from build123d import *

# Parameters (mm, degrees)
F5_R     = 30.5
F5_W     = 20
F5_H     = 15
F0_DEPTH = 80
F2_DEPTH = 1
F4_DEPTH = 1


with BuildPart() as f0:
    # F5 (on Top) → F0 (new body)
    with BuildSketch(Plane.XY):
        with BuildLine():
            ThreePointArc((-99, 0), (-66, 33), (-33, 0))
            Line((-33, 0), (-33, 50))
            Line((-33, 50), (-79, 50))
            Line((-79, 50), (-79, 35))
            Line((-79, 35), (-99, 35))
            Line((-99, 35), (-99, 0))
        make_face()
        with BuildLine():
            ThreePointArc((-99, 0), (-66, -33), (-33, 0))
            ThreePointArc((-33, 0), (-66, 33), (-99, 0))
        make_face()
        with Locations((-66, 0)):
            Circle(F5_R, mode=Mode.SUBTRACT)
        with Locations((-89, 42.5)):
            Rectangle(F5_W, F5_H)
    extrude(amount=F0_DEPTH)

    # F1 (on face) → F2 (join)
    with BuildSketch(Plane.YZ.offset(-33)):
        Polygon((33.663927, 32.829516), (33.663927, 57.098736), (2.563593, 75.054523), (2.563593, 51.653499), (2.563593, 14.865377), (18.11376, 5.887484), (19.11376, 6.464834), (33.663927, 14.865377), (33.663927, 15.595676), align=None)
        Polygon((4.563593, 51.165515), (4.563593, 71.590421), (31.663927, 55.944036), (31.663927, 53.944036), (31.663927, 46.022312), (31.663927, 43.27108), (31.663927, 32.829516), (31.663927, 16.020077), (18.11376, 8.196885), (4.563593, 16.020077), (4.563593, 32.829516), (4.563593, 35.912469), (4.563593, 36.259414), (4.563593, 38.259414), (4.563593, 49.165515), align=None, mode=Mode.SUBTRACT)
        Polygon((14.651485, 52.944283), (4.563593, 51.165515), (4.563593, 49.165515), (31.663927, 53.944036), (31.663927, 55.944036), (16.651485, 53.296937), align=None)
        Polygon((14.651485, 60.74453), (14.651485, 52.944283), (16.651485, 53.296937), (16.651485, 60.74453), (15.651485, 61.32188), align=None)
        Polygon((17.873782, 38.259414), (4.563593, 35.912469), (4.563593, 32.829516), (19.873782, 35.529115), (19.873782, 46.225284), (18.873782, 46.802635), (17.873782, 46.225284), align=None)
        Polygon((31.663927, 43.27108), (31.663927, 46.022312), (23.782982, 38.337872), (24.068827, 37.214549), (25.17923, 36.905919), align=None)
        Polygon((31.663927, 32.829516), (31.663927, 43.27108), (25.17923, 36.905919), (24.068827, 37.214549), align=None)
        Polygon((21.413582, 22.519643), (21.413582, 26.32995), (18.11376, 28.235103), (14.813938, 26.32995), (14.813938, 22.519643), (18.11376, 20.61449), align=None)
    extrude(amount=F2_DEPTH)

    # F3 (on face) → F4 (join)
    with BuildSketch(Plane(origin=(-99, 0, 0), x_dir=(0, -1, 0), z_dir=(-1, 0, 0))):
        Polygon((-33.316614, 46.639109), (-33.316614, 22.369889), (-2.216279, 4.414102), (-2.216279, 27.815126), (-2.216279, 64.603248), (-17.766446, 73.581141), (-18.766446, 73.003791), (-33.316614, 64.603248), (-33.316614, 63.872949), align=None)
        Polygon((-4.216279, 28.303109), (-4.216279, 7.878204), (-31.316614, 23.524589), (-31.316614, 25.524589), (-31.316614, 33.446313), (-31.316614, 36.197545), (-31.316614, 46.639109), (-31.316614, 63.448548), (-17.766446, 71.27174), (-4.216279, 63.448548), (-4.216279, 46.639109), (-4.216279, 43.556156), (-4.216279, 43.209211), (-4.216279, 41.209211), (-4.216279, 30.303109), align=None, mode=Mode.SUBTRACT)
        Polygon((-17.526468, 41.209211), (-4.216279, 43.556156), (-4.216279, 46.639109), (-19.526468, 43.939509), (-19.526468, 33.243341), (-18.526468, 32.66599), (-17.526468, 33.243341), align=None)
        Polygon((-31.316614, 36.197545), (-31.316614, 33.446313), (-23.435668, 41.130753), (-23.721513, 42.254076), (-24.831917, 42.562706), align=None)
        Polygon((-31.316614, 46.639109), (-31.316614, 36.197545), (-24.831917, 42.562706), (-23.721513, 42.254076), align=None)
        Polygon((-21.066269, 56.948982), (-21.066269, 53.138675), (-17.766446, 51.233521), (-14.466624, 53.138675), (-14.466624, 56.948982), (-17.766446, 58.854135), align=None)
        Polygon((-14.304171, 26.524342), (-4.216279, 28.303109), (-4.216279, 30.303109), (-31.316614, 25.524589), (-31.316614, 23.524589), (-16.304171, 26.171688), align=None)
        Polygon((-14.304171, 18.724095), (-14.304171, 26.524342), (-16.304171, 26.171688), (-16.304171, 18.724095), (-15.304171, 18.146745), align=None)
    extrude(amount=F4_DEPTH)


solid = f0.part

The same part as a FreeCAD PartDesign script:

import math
import FreeCAD as App
import Part
import Sketcher
from FreeCAD import Vector
Q = App.Units.Quantity

doc = App.newDocument("Part")
body = doc.addObject("PartDesign::Body", "Body")

sketch1 = body.newObject("Sketcher::SketchObject", "Sketch")
sketch1.AttachmentSupport = (doc.getObject("XY_Plane"), [""])
sketch1.MapMode = "FlatFace"
sketch1.addGeometry([
    Part.LineSegment(Vector(-33, 0, 0), Vector(-33, 50, 0)),
    Part.LineSegment(Vector(-33, 50, 0), Vector(-99, 50, 0)),
    Part.LineSegment(Vector(-99, 50, 0), Vector(-99, 0, 0)),
    Part.ArcOfCircle(Part.Circle(Vector(-66, 0, 0), Vector(0, 0, 1), 33), math.radians(180), math.radians(360)),
    Part.Circle(Vector(-66, 0, 0), Vector(0, 0, 1), 30),
], False)
sketch1.addConstraint([
    Sketcher.Constraint("Coincident", 0, 2, 1, 1),
    Sketcher.Constraint("Coincident", 1, 2, 2, 1),
    Sketcher.Constraint("Tangent", 2, 2, 3, 1),
    Sketcher.Constraint("Tangent", 3, 2, 0, 1),
    Sketcher.Constraint("Vertical", 0),
    Sketcher.Constraint("Horizontal", 1),
    Sketcher.Constraint("Vertical", 2),
    Sketcher.Constraint("Coincident", 4, 3, 3, 3),
    Sketcher.Constraint("PointOnObject", 3, 3, -1),
    Sketcher.Constraint("Diameter", 4, 61.0),
    Sketcher.Constraint("Radius", 3, 33.0),
    Sketcher.Constraint("DistanceY", 0, 1, 0, 2, 50.0),
    Sketcher.Constraint("DistanceX", 3, 3, -1, 1, 66.0),
])
pad1 = body.newObject("PartDesign::Pad", "Pad")
pad1.Profile = sketch1
pad1.Length = 80

sketch2 = body.newObject("Sketcher::SketchObject", "Sketch001")
sketch2.AttachmentSupport = (doc.getObject("YZ_Plane"), [""])
sketch2.MapMode = "FlatFace"
sketch2.AttachmentOffset = App.Placement(Vector(0, 0, -33), App.Rotation())
sketch2.addGeometry([
    Part.LineSegment(Vector(33.7, 57.1, 0), Vector(2.6, 75.1, 0)),
    Part.LineSegment(Vector(2.6, 75.1, 0), Vector(2.6, 14.9, 0)),
    Part.LineSegment(Vector(2.6, 14.9, 0), Vector(18.1, 5.9, 0)),
    Part.LineSegment(Vector(18.1, 5.9, 0), Vector(19.1, 6.5, 0)),
    Part.LineSegment(Vector(19.1, 6.5, 0), Vector(33.7, 14.9, 0)),
    Part.LineSegment(Vector(33.7, 14.9, 0), Vector(33.7, 57.1, 0)),
    Part.LineSegment(Vector(4.6, 16, 0), Vector(4.6, 32.8, 0)),
    Part.LineSegment(Vector(4.6, 32.8, 0), Vector(19.9, 35.5, 0)),
    Part.LineSegment(Vector(19.9, 35.5, 0), Vector(19.9, 46.2, 0)),
    Part.LineSegment(Vector(19.9, 46.2, 0), Vector(18.9, 46.8, 0)),
    Part.LineSegment(Vector(18.9, 46.8, 0), Vector(17.9, 46.2, 0)),
    Part.LineSegment(Vector(17.9, 46.2, 0), Vector(17.9, 38.3, 0)),
    Part.LineSegment(Vector(17.9, 38.3, 0), Vector(4.6, 35.9, 0)),
    Part.LineSegment(Vector(4.6, 35.9, 0), Vector(4.6, 49.2, 0)),
    Part.LineSegment(Vector(4.6, 49.2, 0), Vector(31.7, 53.9, 0)),
    Part.LineSegment(Vector(31.7, 53.9, 0), Vector(31.7, 46, 0)),
    Part.LineSegment(Vector(31.7, 46, 0), Vector(23.8, 38.3, 0)),
    Part.LineSegment(Vector(23.8, 38.3, 0), Vector(24.1, 37.2, 0)),
    Part.LineSegment(Vector(24.1, 37.2, 0), Vector(31.7, 32.8, 0)),
    Part.LineSegment(Vector(31.7, 32.8, 0), Vector(31.7, 16, 0)),
    Part.LineSegment(Vector(31.7, 16, 0), Vector(18.1, 8.2, 0)),
    Part.LineSegment(Vector(18.1, 8.2, 0), Vector(4.6, 16, 0)),
    Part.LineSegment(Vector(4.6, 51.2, 0), Vector(4.6, 71.6, 0)),
    Part.LineSegment(Vector(4.6, 71.6, 0), Vector(31.7, 55.9, 0)),
    Part.LineSegment(Vector(31.7, 55.9, 0), Vector(16.7, 53.3, 0)),
    Part.LineSegment(Vector(16.7, 53.3, 0), Vector(16.7, 60.7, 0)),
    Part.LineSegment(Vector(16.7, 60.7, 0), Vector(15.7, 61.3, 0)),
    Part.LineSegment(Vector(15.7, 61.3, 0), Vector(14.7, 60.7, 0)),
    Part.LineSegment(Vector(14.7, 60.7, 0), Vector(14.7, 52.9, 0)),
    Part.LineSegment(Vector(14.7, 52.9, 0), Vector(4.6, 51.2, 0)),
    Part.LineSegment(Vector(21.4, 22.5, 0), Vector(21.4, 26.3, 0)),
    Part.LineSegment(Vector(21.4, 26.3, 0), Vector(18.1, 28.2, 0)),
    Part.LineSegment(Vector(18.1, 28.2, 0), Vector(14.8, 26.3, 0)),
    Part.LineSegment(Vector(14.8, 26.3, 0), Vector(14.8, 22.5, 0)),
    Part.LineSegment(Vector(14.8, 22.5, 0), Vector(18.1, 20.6, 0)),
    Part.LineSegment(Vector(18.1, 20.6, 0), Vector(21.4, 22.5, 0)),
], False)
sketch2.addConstraint([
    Sketcher.Constraint("Coincident", 0, 2, 1, 1),
    Sketcher.Constraint("Coincident", 1, 2, 2, 1),
    Sketcher.Constraint("Coincident", 2, 2, 3, 1),
    Sketcher.Constraint("Coincident", 3, 2, 4, 1),
    Sketcher.Constraint("Coincident", 4, 2, 5, 1),
    Sketcher.Constraint("Coincident", 5, 2, 0, 1),
    Sketcher.Constraint("Coincident", 6, 2, 7, 1),
    Sketcher.Constraint("Coincident", 7, 2, 8, 1),
    Sketcher.Constraint("Coincident", 8, 2, 9, 1),
    Sketcher.Constraint("Coincident", 9, 2, 10, 1),
    Sketcher.Constraint("Coincident", 10, 2, 11, 1),
    Sketcher.Constraint("Coincident", 11, 2, 12, 1),
    Sketcher.Constraint("Coincident", 12, 2, 13, 1),
    Sketcher.Constraint("Coincident", 13, 2, 14, 1),
    Sketcher.Constraint("Coincident", 14, 2, 15, 1),
    Sketcher.Constraint("Coincident", 15, 2, 16, 1),
    Sketcher.Constraint("Coincident", 16, 2, 17, 1),
    Sketcher.Constraint("Coincident", 17, 2, 18, 1),
    Sketcher.Constraint("Coincident", 18, 2, 19, 1),
    Sketcher.Constraint("Coincident", 19, 2, 20, 1),
    Sketcher.Constraint("Coincident", 20, 2, 21, 1),
    Sketcher.Constraint("Coincident", 21, 2, 6, 1),
    Sketcher.Constraint("Coincident", 22, 2, 23, 1),
    Sketcher.Constraint("Coincident", 23, 2, 24, 1),
    Sketcher.Constraint("Coincident", 24, 2, 25, 1),
    Sketcher.Constraint("Coincident", 25, 2, 26, 1),
    Sketcher.Constraint("Coincident", 26, 2, 27, 1),
    Sketcher.Constraint("Coincident", 27, 2, 28, 1),
    Sketcher.Constraint("Coincident", 28, 2, 29, 1),
    Sketcher.Constraint("Coincident", 29, 2, 22, 1),
    Sketcher.Constraint("Coincident", 30, 2, 31, 1),
    Sketcher.Constraint("Coincident", 31, 2, 32, 1),
    Sketcher.Constraint("Coincident", 32, 2, 33, 1),
    Sketcher.Constraint("Coincident", 33, 2, 34, 1),
    Sketcher.Constraint("Coincident", 34, 2, 35, 1),
    Sketcher.Constraint("Coincident", 35, 2, 30, 1),
    Sketcher.Constraint("Vertical", 1),
    Sketcher.Constraint("Vertical", 5),
    Sketcher.Constraint("Vertical", 6),
    Sketcher.Constraint("Vertical", 8),
    Sketcher.Constraint("Vertical", 11),
    Sketcher.Constraint("Vertical", 13),
    Sketcher.Constraint("Vertical", 15),
    Sketcher.Constraint("Vertical", 19),
    Sketcher.Constraint("Vertical", 22),
    Sketcher.Constraint("Vertical", 25),
    Sketcher.Constraint("Vertical", 28),
    Sketcher.Constraint("Vertical", 30),
    Sketcher.Constraint("Vertical", 33),
    Sketcher.Constraint("Parallel", 0, 2),
    Sketcher.Constraint("Parallel", 3, 4),
    Sketcher.Constraint("Parallel", 2, 9),
    Sketcher.Constraint("Parallel", 4, 10),
    Sketcher.Constraint("Parallel", 7, 12),
    Sketcher.Constraint("Parallel", 12, 14),
    Sketcher.Constraint("Parallel", 9, 18),
    Sketcher.Constraint("Parallel", 10, 20),
    Sketcher.Constraint("Parallel", 18, 21),
    Sketcher.Constraint("Parallel", 21, 23),
    Sketcher.Constraint("Parallel", 14, 24),
    Sketcher.Constraint("Parallel", 23, 26),
    Sketcher.Constraint("Parallel", 20, 27),
    Sketcher.Constraint("Parallel", 24, 29),
    Sketcher.Constraint("Parallel", 26, 31),
    Sketcher.Constraint("Parallel", 27, 32),
    Sketcher.Constraint("Parallel", 31, 34),
    Sketcher.Constraint("Parallel", 32, 35),
    Sketcher.Constraint("Horizontal", 1, 2, 4, 2),
    Sketcher.Constraint("Horizontal", 8, 2, 10, 2),
    Sketcher.Constraint("Horizontal", 6, 2, 18, 2),
    Sketcher.Constraint("Horizontal", 19, 2, 21, 2),
    Sketcher.Constraint("Horizontal", 25, 2, 27, 2),
    Sketcher.Constraint("Horizontal", 30, 2, 32, 2),
    Sketcher.Constraint("Horizontal", 33, 2, 35, 2),
    Sketcher.Constraint("Vertical", 6, 2, 12, 2),
    Sketcher.Constraint("Vertical", 15, 2, 18, 2),
    Sketcher.Constraint("Vertical", 2, 2, 20, 2),
    Sketcher.Constraint("Vertical", 21, 2, 22, 2),
    Sketcher.Constraint("Vertical", 19, 2, 23, 2),
    Sketcher.Constraint("Vertical", 20, 2, 31, 2),
    Sketcher.Constraint("Vertical", 31, 2, 34, 2),
    Sketcher.Constraint("Equal", 3, 9),
    Sketcher.Constraint("Equal", 10, 26),
    Sketcher.Constraint("Angle", 0, Q("149.999999 deg")),
    Sketcher.Constraint("Angle", 7, Q("9.999999 deg")),
    Sketcher.Constraint("DistanceX", 2, 2, 3, 2, 1.0),
    Sketcher.Constraint("DistanceX", 1, 2, 6, 2, 2.0),
    Sketcher.Constraint("DistanceY", 14, 2, 23, 2, 2.0),
    Sketcher.Constraint("DistanceY", 13, 2, 29, 2, 2.0),
    Sketcher.Constraint("DistanceY", 6, 2, 13, 2, 16.335999),
    Sketcher.Constraint("DistanceY", 10, 2, 28, 2, 6.718999),
    Sketcher.Constraint("Distance", 14, 27.5184),
    Sketcher.Constraint("DistanceY", 5, 1, 5, 2, 42.233359),
    Sketcher.Constraint("DistanceY", 6, 1, 6, 2, 16.809439),
    Sketcher.Constraint("DistanceY", 8, 1, 8, 2, 10.696169),
    Sketcher.Constraint("DistanceY", 11, 2, 11, 1, 7.96587),
    Sketcher.Constraint("DistanceY", 6, 2, 7, 2, 2.699599),
    Sketcher.Constraint("DistanceY", 9, 2, 5, 2, 10.296101),
    Sketcher.Constraint("DistanceX", 7, 2, 16, 2, 3.9092),
    Sketcher.Constraint("DistanceX", 17, 2, 18, 2, 7.5951),
    Sketcher.Constraint("DistanceX", 7, 2, 30, 2, 1.5398),
    Sketcher.Constraint("DistanceY", 30, 2, 17, 2, 10.884599),
    Sketcher.Constraint("Distance", 17, 1.159121),
    Sketcher.Constraint("DistanceY", 15, 2, 15, 1, 7.921724),
    Sketcher.Constraint("DistanceY", 25, 1, 25, 2, 7.447593),
    Sketcher.Constraint("DistanceY", 30, 1, 30, 2, 3.810307),
    Sketcher.Constraint("DistanceX", -1, 1, 2, 2, 18.11376),
    Sketcher.Constraint("DistanceY", -1, 1, 12, 2, 35.912469),
])
pad2 = body.newObject("PartDesign::Pad", "Pad001")
pad2.Profile = sketch2
pad2.Length = 1

sketch3 = body.newObject("Sketcher::SketchObject", "Sketch002")
sketch3.AttachmentSupport = (doc.getObject("YZ_Plane"), [""])
sketch3.MapMode = "FlatFace"
sketch3.AttachmentOffset = App.Placement(Vector(0, 0, -99), App.Rotation())
sketch3.addGeometry([
    Part.LineSegment(Vector(33.3, 22.4, 0), Vector(2.2, 4.4, 0)),
    Part.LineSegment(Vector(2.2, 4.4, 0), Vector(2.2, 64.6, 0)),
    Part.LineSegment(Vector(2.2, 64.6, 0), Vector(17.8, 73.6, 0)),
    Part.LineSegment(Vector(17.8, 73.6, 0), Vector(18.8, 73, 0)),
    Part.LineSegment(Vector(18.8, 73, 0), Vector(33.3, 64.6, 0)),
    Part.LineSegment(Vector(33.3, 64.6, 0), Vector(33.3, 22.4, 0)),
    Part.LineSegment(Vector(4.2, 63.4, 0), Vector(4.2, 46.6, 0)),
    Part.LineSegment(Vector(4.2, 46.6, 0), Vector(19.5, 43.9, 0)),
    Part.LineSegment(Vector(19.5, 43.9, 0), Vector(19.5, 33.2, 0)),
    Part.LineSegment(Vector(19.5, 33.2, 0), Vector(18.5, 32.7, 0)),
    Part.LineSegment(Vector(18.5, 32.7, 0), Vector(17.5, 33.2, 0)),
    Part.LineSegment(Vector(17.5, 33.2, 0), Vector(17.5, 41.2, 0)),
    Part.LineSegment(Vector(17.5, 41.2, 0), Vector(4.2, 43.6, 0)),
    Part.LineSegment(Vector(4.2, 43.6, 0), Vector(4.2, 30.3, 0)),
    Part.LineSegment(Vector(4.2, 30.3, 0), Vector(31.3, 25.5, 0)),
    Part.LineSegment(Vector(31.3, 25.5, 0), Vector(31.3, 33.4, 0)),
    Part.LineSegment(Vector(31.3, 33.4, 0), Vector(23.4, 41.1, 0)),
    Part.LineSegment(Vector(23.4, 41.1, 0), Vector(23.7, 42.3, 0)),
    Part.LineSegment(Vector(23.7, 42.3, 0), Vector(31.3, 46.6, 0)),
    Part.LineSegment(Vector(31.3, 46.6, 0), Vector(31.3, 63.4, 0)),
    Part.LineSegment(Vector(31.3, 63.4, 0), Vector(17.8, 71.3, 0)),
    Part.LineSegment(Vector(17.8, 71.3, 0), Vector(4.2, 63.4, 0)),
    Part.LineSegment(Vector(4.2, 28.3, 0), Vector(4.2, 7.9, 0)),
    Part.LineSegment(Vector(4.2, 7.9, 0), Vector(31.3, 23.5, 0)),
    Part.LineSegment(Vector(31.3, 23.5, 0), Vector(16.3, 26.2, 0)),
    Part.LineSegment(Vector(16.3, 26.2, 0), Vector(16.3, 18.7, 0)),
    Part.LineSegment(Vector(16.3, 18.7, 0), Vector(15.3, 18.1, 0)),
    Part.LineSegment(Vector(15.3, 18.1, 0), Vector(14.3, 18.7, 0)),
    Part.LineSegment(Vector(14.3, 18.7, 0), Vector(14.3, 26.5, 0)),
    Part.LineSegment(Vector(14.3, 26.5, 0), Vector(4.2, 28.3, 0)),
    Part.LineSegment(Vector(21.1, 56.9, 0), Vector(21.1, 53.1, 0)),
    Part.LineSegment(Vector(21.1, 53.1, 0), Vector(17.8, 51.2, 0)),
    Part.LineSegment(Vector(17.8, 51.2, 0), Vector(14.5, 53.1, 0)),
    Part.LineSegment(Vector(14.5, 53.1, 0), Vector(14.5, 56.9, 0)),
    Part.LineSegment(Vector(14.5, 56.9, 0), Vector(17.8, 58.9, 0)),
    Part.LineSegment(Vector(17.8, 58.9, 0), Vector(21.1, 56.9, 0)),
], False)
sketch3.addConstraint([
    Sketcher.Constraint("Coincident", 0, 2, 1, 1),
    Sketcher.Constraint("Coincident", 1, 2, 2, 1),
    Sketcher.Constraint("Coincident", 2, 2, 3, 1),
    Sketcher.Constraint("Coincident", 3, 2, 4, 1),
    Sketcher.Constraint("Coincident", 4, 2, 5, 1),
    Sketcher.Constraint("Coincident", 5, 2, 0, 1),
    Sketcher.Constraint("Coincident", 6, 2, 7, 1),
    Sketcher.Constraint("Coincident", 7, 2, 8, 1),
    Sketcher.Constraint("Coincident", 8, 2, 9, 1),
    Sketcher.Constraint("Coincident", 9, 2, 10, 1),
    Sketcher.Constraint("Coincident", 10, 2, 11, 1),
    Sketcher.Constraint("Coincident", 11, 2, 12, 1),
    Sketcher.Constraint("Coincident", 12, 2, 13, 1),
    Sketcher.Constraint("Coincident", 13, 2, 14, 1),
    Sketcher.Constraint("Coincident", 14, 2, 15, 1),
    Sketcher.Constraint("Coincident", 15, 2, 16, 1),
    Sketcher.Constraint("Coincident", 16, 2, 17, 1),
    Sketcher.Constraint("Coincident", 17, 2, 18, 1),
    Sketcher.Constraint("Coincident", 18, 2, 19, 1),
    Sketcher.Constraint("Coincident", 19, 2, 20, 1),
    Sketcher.Constraint("Coincident", 20, 2, 21, 1),
    Sketcher.Constraint("Coincident", 21, 2, 6, 1),
    Sketcher.Constraint("Coincident", 22, 2, 23, 1),
    Sketcher.Constraint("Coincident", 23, 2, 24, 1),
    Sketcher.Constraint("Coincident", 24, 2, 25, 1),
    Sketcher.Constraint("Coincident", 25, 2, 26, 1),
    Sketcher.Constraint("Coincident", 26, 2, 27, 1),
    Sketcher.Constraint("Coincident", 27, 2, 28, 1),
    Sketcher.Constraint("Coincident", 28, 2, 29, 1),
    Sketcher.Constraint("Coincident", 29, 2, 22, 1),
    Sketcher.Constraint("Coincident", 30, 2, 31, 1),
    Sketcher.Constraint("Coincident", 31, 2, 32, 1),
    Sketcher.Constraint("Coincident", 32, 2, 33, 1),
    Sketcher.Constraint("Coincident", 33, 2, 34, 1),
    Sketcher.Constraint("Coincident", 34, 2, 35, 1),
    Sketcher.Constraint("Coincident", 35, 2, 30, 1),
    Sketcher.Constraint("Vertical", 1),
    Sketcher.Constraint("Vertical", 5),
    Sketcher.Constraint("Vertical", 6),
    Sketcher.Constraint("Vertical", 8),
    Sketcher.Constraint("Vertical", 11),
    Sketcher.Constraint("Vertical", 13),
    Sketcher.Constraint("Vertical", 15),
    Sketcher.Constraint("Vertical", 19),
    Sketcher.Constraint("Vertical", 22),
    Sketcher.Constraint("Vertical", 25),
    Sketcher.Constraint("Vertical", 28),
    Sketcher.Constraint("Vertical", 30),
    Sketcher.Constraint("Vertical", 33),
    Sketcher.Constraint("Parallel", 0, 2),
    Sketcher.Constraint("Parallel", 3, 4),
    Sketcher.Constraint("Parallel", 2, 9),
    Sketcher.Constraint("Parallel", 4, 10),
    Sketcher.Constraint("Parallel", 7, 12),
    Sketcher.Constraint("Parallel", 12, 14),
    Sketcher.Constraint("Parallel", 9, 18),
    Sketcher.Constraint("Parallel", 10, 20),
    Sketcher.Constraint("Parallel", 18, 21),
    Sketcher.Constraint("Parallel", 21, 23),
    Sketcher.Constraint("Parallel", 14, 24),
    Sketcher.Constraint("Parallel", 23, 26),
    Sketcher.Constraint("Parallel", 20, 27),
    Sketcher.Constraint("Parallel", 24, 29),
    Sketcher.Constraint("Parallel", 26, 31),
    Sketcher.Constraint("Parallel", 27, 32),
    Sketcher.Constraint("Parallel", 31, 34),
    Sketcher.Constraint("Parallel", 32, 35),
    Sketcher.Constraint("Horizontal", 1, 2, 4, 2),
    Sketcher.Constraint("Horizontal", 8, 2, 10, 2),
    Sketcher.Constraint("Horizontal", 6, 2, 18, 2),
    Sketcher.Constraint("Horizontal", 19, 2, 21, 2),
    Sketcher.Constraint("Horizontal", 25, 2, 27, 2),
    Sketcher.Constraint("Horizontal", 30, 2, 32, 2),
    Sketcher.Constraint("Horizontal", 33, 2, 35, 2),
    Sketcher.Constraint("Vertical", 6, 2, 12, 2),
    Sketcher.Constraint("Vertical", 15, 2, 18, 2),
    Sketcher.Constraint("Vertical", 2, 2, 20, 2),
    Sketcher.Constraint("Vertical", 21, 2, 22, 2),
    Sketcher.Constraint("Vertical", 19, 2, 23, 2),
    Sketcher.Constraint("Vertical", 20, 2, 31, 2),
    Sketcher.Constraint("Vertical", 31, 2, 34, 2),
    Sketcher.Constraint("Equal", 3, 9),
    Sketcher.Constraint("Equal", 10, 26),
    Sketcher.Constraint("Angle", 0, Q("-150 deg")),
    Sketcher.Constraint("Angle", 7, Q("-10.000002 deg")),
    Sketcher.Constraint("DistanceX", 2, 2, 3, 2, 1.0),
    Sketcher.Constraint("DistanceX", 1, 2, 6, 2, 2.0),
    Sketcher.Constraint("DistanceY", 23, 2, 14, 2, 2.0),
    Sketcher.Constraint("DistanceY", 29, 2, 13, 2, 2.0),
    Sketcher.Constraint("DistanceY", 13, 2, 6, 2, 16.336),
    Sketcher.Constraint("DistanceY", 28, 2, 10, 2, 6.718999),
    Sketcher.Constraint("Distance", 14, 27.518401),
    Sketcher.Constraint("DistanceY", 5, 2, 5, 1, 42.233359),
    Sketcher.Constraint("DistanceY", 6, 2, 6, 1, 16.809439),
    Sketcher.Constraint("DistanceY", 11, 1, 11, 2, 7.96587),
    Sketcher.Constraint("DistanceY", -1, 1, 0, 2, 4.414102),
    Sketcher.Constraint("DistanceY", 7, 2, 6, 2, 2.6996),
    Sketcher.Constraint("DistanceY", 5, 2, 9, 2, 10.296101),
    Sketcher.Constraint("DistanceY", 5, 2, 14, 2, 3.1547),
    Sketcher.Constraint("DistanceX", 7, 2, 16, 2, 3.9092),
    Sketcher.Constraint("DistanceX", 17, 2, 18, 2, 7.595101),
    Sketcher.Constraint("DistanceX", 7, 2, 30, 2, 1.539801),
    Sketcher.Constraint("DistanceY", 17, 2, 30, 2, 10.884599),
    Sketcher.Constraint("Distance", 17, 1.159121),
    Sketcher.Constraint("DistanceY", 15, 1, 15, 2, 7.921724),
    Sketcher.Constraint("DistanceY", 25, 2, 25, 1, 7.447593),
    Sketcher.Constraint("DistanceY", 30, 2, 30, 1, 3.810307),
    Sketcher.Constraint("DistanceX", -1, 1, 0, 2, 2.216279),
])
pad3 = body.newObject("PartDesign::Pad", "Pad002")
pad3.Profile = sketch3
pad3.Length = 1
pad3.Reversed = True

doc.recompute()
